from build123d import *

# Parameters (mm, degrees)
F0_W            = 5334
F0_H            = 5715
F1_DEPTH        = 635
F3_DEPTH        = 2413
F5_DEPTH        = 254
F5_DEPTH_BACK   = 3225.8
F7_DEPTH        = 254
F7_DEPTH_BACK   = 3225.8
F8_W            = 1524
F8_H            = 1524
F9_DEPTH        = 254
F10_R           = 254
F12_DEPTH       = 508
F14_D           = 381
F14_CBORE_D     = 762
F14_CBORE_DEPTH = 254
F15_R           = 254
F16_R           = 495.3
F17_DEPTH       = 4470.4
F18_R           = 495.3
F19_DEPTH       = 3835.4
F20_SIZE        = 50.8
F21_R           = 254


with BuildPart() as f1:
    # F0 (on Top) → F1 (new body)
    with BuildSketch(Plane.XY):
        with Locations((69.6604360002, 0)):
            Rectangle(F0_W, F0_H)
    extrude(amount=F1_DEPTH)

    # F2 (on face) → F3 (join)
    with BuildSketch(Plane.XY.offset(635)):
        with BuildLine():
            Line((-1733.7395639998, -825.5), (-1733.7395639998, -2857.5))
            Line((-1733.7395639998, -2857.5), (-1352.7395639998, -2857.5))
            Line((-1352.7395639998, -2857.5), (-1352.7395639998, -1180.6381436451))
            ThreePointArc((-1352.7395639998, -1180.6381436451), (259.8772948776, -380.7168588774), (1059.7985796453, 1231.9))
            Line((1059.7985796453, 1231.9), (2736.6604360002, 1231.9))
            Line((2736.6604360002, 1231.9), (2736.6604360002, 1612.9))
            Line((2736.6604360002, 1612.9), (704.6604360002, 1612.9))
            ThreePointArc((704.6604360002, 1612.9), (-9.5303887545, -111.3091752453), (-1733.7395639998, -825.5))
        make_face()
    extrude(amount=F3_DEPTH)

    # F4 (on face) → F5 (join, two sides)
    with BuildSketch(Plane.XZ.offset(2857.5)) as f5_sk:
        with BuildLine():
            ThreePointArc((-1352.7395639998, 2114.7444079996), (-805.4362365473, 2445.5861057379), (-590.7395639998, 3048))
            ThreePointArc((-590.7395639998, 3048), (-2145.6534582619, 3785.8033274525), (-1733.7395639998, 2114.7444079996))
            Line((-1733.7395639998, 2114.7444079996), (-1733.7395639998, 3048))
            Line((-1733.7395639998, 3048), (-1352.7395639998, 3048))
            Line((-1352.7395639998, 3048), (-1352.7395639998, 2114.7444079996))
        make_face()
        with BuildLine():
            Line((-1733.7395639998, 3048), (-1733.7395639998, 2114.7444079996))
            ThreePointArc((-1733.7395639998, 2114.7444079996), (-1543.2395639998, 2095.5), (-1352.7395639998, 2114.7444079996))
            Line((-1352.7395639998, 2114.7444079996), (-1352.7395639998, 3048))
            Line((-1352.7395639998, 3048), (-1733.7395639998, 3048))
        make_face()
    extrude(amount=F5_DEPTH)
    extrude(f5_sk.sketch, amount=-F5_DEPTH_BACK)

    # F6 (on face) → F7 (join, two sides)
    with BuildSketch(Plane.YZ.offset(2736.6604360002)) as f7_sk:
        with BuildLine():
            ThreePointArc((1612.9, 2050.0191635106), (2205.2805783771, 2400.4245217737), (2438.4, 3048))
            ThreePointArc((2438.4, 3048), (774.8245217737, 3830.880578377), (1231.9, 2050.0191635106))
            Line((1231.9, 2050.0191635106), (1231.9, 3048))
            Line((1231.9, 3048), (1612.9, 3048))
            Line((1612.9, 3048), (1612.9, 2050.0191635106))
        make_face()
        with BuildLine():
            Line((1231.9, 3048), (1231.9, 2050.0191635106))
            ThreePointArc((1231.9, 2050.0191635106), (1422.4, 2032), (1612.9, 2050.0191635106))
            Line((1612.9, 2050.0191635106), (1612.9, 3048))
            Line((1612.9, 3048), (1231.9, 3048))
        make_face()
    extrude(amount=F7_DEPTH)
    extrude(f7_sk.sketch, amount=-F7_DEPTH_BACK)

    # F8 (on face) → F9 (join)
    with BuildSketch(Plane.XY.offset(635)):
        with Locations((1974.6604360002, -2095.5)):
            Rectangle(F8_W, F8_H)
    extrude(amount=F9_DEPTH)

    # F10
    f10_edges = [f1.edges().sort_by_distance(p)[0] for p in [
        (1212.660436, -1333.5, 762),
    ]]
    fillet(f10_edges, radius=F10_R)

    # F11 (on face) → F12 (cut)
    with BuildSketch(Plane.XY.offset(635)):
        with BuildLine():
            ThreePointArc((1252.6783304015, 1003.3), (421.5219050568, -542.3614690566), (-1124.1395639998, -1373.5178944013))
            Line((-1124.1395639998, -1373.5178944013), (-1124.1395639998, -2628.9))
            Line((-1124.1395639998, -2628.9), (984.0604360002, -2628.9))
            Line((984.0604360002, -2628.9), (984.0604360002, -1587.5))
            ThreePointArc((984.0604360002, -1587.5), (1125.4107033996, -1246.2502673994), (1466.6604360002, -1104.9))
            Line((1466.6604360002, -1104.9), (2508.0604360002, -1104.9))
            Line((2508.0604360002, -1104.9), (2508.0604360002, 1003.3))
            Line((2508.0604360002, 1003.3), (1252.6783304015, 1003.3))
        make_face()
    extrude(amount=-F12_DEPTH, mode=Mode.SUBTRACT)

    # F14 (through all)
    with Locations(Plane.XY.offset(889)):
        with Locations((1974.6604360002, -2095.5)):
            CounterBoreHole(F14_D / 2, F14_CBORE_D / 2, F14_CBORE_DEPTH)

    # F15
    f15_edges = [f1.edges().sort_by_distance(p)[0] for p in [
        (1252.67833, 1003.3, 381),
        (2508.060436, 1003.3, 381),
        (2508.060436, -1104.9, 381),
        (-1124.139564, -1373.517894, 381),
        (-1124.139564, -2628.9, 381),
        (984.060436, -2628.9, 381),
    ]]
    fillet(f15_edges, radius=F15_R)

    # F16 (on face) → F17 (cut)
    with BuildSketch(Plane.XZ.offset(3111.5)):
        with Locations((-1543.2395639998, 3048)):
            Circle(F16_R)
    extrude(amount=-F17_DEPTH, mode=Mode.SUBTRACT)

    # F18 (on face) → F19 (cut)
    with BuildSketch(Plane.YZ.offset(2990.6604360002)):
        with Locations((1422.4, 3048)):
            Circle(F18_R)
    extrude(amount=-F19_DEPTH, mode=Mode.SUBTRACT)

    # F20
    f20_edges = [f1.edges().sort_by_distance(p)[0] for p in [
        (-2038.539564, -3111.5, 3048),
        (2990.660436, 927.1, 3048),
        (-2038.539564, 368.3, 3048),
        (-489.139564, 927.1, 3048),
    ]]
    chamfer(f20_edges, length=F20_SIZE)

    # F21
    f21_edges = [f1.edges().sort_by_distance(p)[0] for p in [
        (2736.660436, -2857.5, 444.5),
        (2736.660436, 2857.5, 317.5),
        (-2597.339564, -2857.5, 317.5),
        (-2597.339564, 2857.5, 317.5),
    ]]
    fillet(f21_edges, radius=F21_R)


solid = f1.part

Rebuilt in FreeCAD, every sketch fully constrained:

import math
import FreeCAD as App
import Part
import Sketcher
from FreeCAD import Vector
Q = App.Units.Quantity


def edges_at(feature, points):
    """Names of the edges that pass closest to the given points."""
    edges = feature.Shape.Edges
    near = lambda p: min(range(len(edges)), key=lambda i: edges[i].distToShape(Part.Vertex(*p))[0])
    return sorted({f"Edge{near(p) + 1}" for p in points})

doc = App.newDocument("Part")
body = doc.addObject("PartDesign::Body", "Body")

sketch1 = doc.addObject("Sketcher::SketchObject", "Sketch")
body.addObject(sketch1)
sketch1.AttachmentSupport = (doc.XY_Plane, [""])
sketch1.MapMode = "FlatFace"
sketch1.addGeometry([
    Part.LineSegment(Vector(-2597, 2858, 0), Vector(-2597, -2858, 0)),
    Part.LineSegment(Vector(-2597, -2858, 0), Vector(2737, -2858, 0)),
    Part.LineSegment(Vector(2737, -2858, 0), Vector(2737, 2858, 0)),
    Part.LineSegment(Vector(2737, 2858, 0), Vector(-2597, 2858, 0)),
], False)
sketch1.addConstraint([
    Sketcher.Constraint("Coincident", 0, 2, 1, 1),
    Sketcher.Constraint("Coincident", 1, 2, 2, 1),
    Sketcher.Constraint("Coincident", 2, 2, 3, 1),
    Sketcher.Constraint("Coincident", 3, 2, 0, 1),
    Sketcher.Constraint("Vertical", 0),
    Sketcher.Constraint("Horizontal", 1),
    Sketcher.Constraint("Vertical", 2),
    Sketcher.Constraint("Horizontal", 3),
    Sketcher.Constraint("DistanceX", 1, 1, 1, 2, Q("210 in")),
    Sketcher.Constraint("DistanceY", 0, 2, 0, 1, Q("225 in")),
    Sketcher.Constraint("DistanceY", 0, 2, -1, 1, Q("112.5 in")),
    Sketcher.Constraint("DistanceX", 0, 2, -1, 1, Q("2597.339564 mm")),
])
pad1 = doc.addObject("PartDesign::Pad", "Pad")
body.addObject(pad1)
pad1.Profile = sketch1
pad1.Length = Q("25 in")

sketch2 = doc.addObject("Sketcher::SketchObject", "Sketch001")
body.addObject(sketch2)
sketch2.AttachmentSupport = (doc.XY_Plane, [""])
sketch2.MapMode = "FlatFace"
sketch2.AttachmentOffset = App.Placement(Vector(0, 0, 25 * 25.4), App.Rotation())
sketch2.addGeometry([
    Part.LineSegment(Vector(-1734, -826, 0), Vector(-1734, -2858, 0)),
    Part.LineSegment(Vector(-1734, -2858, 0), Vector(-1353, -2858, 0)),
    Part.LineSegment(Vector(-1353, -2858, 0), Vector(-1353, -1181, 0)),
    Part.ArcOfCircle(Part.Circle(Vector(-1734, 1613, 0), Vector(0, 0, 1), 2819), math.radians(-82), math.radians(-8)),
    Part.LineSegment(Vector(1060, 1232, 0), Vector(2737, 1232, 0)),
    Part.LineSegment(Vector(2737, 1232, 0), Vector(2737, 1613, 0)),
    Part.LineSegment(Vector(2737, 1613, 0), Vector(705, 1613, 0)),
    Part.ArcOfCircle(Part.Circle(Vector(-1734, 1613, 0), Vector(0, 0, 1), 2438), math.radians(-90), math.radians(0)),
], False)
sketch2.addConstraint([
    Sketcher.Constraint("Coincident", 0, 2, 1, 1),
    Sketcher.Constraint("Coincident", 1, 2, 2, 1),
    Sketcher.Constraint("Coincident", 2, 2, 3, 1),
    Sketcher.Constraint("Coincident", 3, 2, 4, 1),
    Sketcher.Constraint("Coincident", 4, 2, 5, 1),
    Sketcher.Constraint("Coincident", 5, 2, 6, 1),
    Sketcher.Constraint("Coincident", 6, 2, 7, 2),
    Sketcher.Constraint("Coincident", 7, 1, 0, 1),
    Sketcher.Constraint("Vertical", 0),
    Sketcher.Constraint("Horizontal", 1),
    Sketcher.Constraint("Vertical", 2),
    Sketcher.Constraint("Horizontal", 4),
    Sketcher.Constraint("Vertical", 5),
    Sketcher.Constraint("Horizontal", 6),
    Sketcher.Constraint("Coincident", 7, 3, 3, 3),
    Sketcher.Constraint("Horizontal", 7, 3, 5, 2),
    Sketcher.Constraint("Vertical", 7, 3, 0, 2),
    Sketcher.Constraint("Equal", 6, 0),
    Sketcher.Constraint("Equal", 4, 2),
    Sketcher.Constraint("Radius", 3, Q("111 in")),
    Sketcher.Constraint("Radius", 7, Q("96 in")),
    Sketcher.Constraint("DistanceX", 1, 1, 1, 2, Q("15 in")),
    Sketcher.Constraint("DistanceX", 6, 2, 6, 1, Q("80 in")),
    Sketcher.Constraint("DistanceY", -1, 1, 3, 3, Q("63.5 in")),
    Sketcher.Constraint("DistanceX", 3, 3, -1, 1, Q("1733.739564 mm")),
])
pad2 = doc.addObject("PartDesign::Pad", "Pad001")
body.addObject(pad2)
pad2.Profile = sketch2
pad2.Length = Q("95 in")

sketch3 = doc.addObject("Sketcher::SketchObject", "Sketch002")
body.addObject(sketch3)
sketch3.AttachmentSupport = (doc.XZ_Plane, [""])
sketch3.MapMode = "FlatFace"
sketch3.AttachmentOffset = App.Placement(Vector(0, 0, 112.5 * 25.4), App.Rotation())
sketch3.addGeometry(Part.Circle(Vector(-1543, 3048, 0), Vector(0, 0, 1), 952), False)
sketch3.addConstraint([
    Sketcher.Constraint("Diameter", 0, Q("75 in")),
    Sketcher.Constraint("DistanceY", -1, 1, 0, 3, Q("120 in")),
    Sketcher.Constraint("DistanceX", 0, 3, -1, 1, Q("1543.239564 mm")),
])
pad3 = doc.addObject("PartDesign::Pad", "Pad002")
body.addObject(pad3)
pad3.Profile = sketch3
pad3.Type = "TwoLengths"
pad3.Length = Q("10 in")
pad3.Length2 = Q("127 in")

sketch4 = doc.addObject("Sketcher::SketchObject", "Sketch003")
body.addObject(sketch4)
sketch4.AttachmentSupport = (doc.YZ_Plane, [""])
sketch4.MapMode = "FlatFace"
sketch4.AttachmentOffset = App.Placement(Vector(0, 0, 2736.660436), App.Rotation())
sketch4.addGeometry(Part.Circle(Vector(1422, 3048, 0), Vector(0, 0, 1), 1016), False)
sketch4.addConstraint([
    Sketcher.Constraint("Diameter", 0, Q("80 in")),
    Sketcher.Constraint("DistanceX", -1, 1, 0, 3, Q("56 in")),
    Sketcher.Constraint("DistanceY", -1, 1, 0, 3, Q("120 in")),
])
pad4 = doc.addObject("PartDesign::Pad", "Pad003")
body.addObject(pad4)
pad4.Profile = sketch4
pad4.Type = "TwoLengths"
pad4.Length = Q("10 in")
pad4.Length2 = Q("127 in")

sketch5 = doc.addObject("Sketcher::SketchObject", "Sketch004")
body.addObject(sketch5)
sketch5.AttachmentSupport = (doc.XY_Plane, [""])
sketch5.MapMode = "FlatFace"
sketch5.AttachmentOffset = App.Placement(Vector(0, 0, 25 * 25.4), App.Rotation())
sketch5.addGeometry([
    Part.LineSegment(Vector(1213, -1334, 0), Vector(1213, -2858, 0)),
    Part.LineSegment(Vector(1213, -2858, 0), Vector(2737, -2858, 0)),
    Part.LineSegment(Vector(2737, -2858, 0), Vector(2737, -1334, 0)),
    Part.LineSegment(Vector(2737, -1334, 0), Vector(1213, -1334, 0)),
], False)
sketch5.addConstraint([
    Sketcher.Constraint("Coincident", 0, 2, 1, 1),
    Sketcher.Constraint("Coincident", 1, 2, 2, 1),
    Sketcher.Constraint("Coincident", 2, 2, 3, 1),
    Sketcher.Constraint("Coincident", 3, 2, 0, 1),
    Sketcher.Constraint("Vertical", 0),
    Sketcher.Constraint("Horizontal", 1),
    Sketcher.Constraint("Vertical", 2),
    Sketcher.Constraint("Horizontal", 3),
    Sketcher.Constraint("Equal", 3, 0),
    Sketcher.Constraint("DistanceX", 1, 1, 1, 2, Q("60 in")),
    Sketcher.Constraint("DistanceY", 0, 2, -1, 1, Q("112.5 in")),
    Sketcher.Constraint("DistanceX", -1, 1, 0, 2, Q("1212.660436 mm")),
])
pad5 = doc.addObject("PartDesign::Pad", "Pad004")
body.addObject(pad5)
pad5.Profile = sketch5
pad5.Length = Q("10 in")
doc.recompute()

fillet = doc.addObject("PartDesign::Fillet", "Fillet")
body.addObject(fillet)
fillet.Base = (pad5, edges_at(pad5, [(1212.66, -1333.5, 762)]))
fillet.Radius = Q("10 in")

sketch6 = doc.addObject("Sketcher::SketchObject", "Sketch005")
body.addObject(sketch6)
sketch6.AttachmentSupport = (doc.XY_Plane, [""])
sketch6.MapMode = "FlatFace"
sketch6.AttachmentOffset = App.Placement(Vector(0, 0, 25 * 25.4), App.Rotation())
sketch6.addGeometry([
    Part.ArcOfCircle(Part.Circle(Vector(-1734, 1613, 0), Vector(0, 0, 1), 3048), math.radians(-78), math.radians(-12)),
    Part.LineSegment(Vector(-1124, -1374, 0), Vector(-1124, -2629, 0)),
    Part.LineSegment(Vector(-1124, -2629, 0), Vector(984, -2629, 0)),
    Part.LineSegment(Vector(984, -2629, 0), Vector(984, -1588, 0)),
    Part.ArcOfCircle(Part.Circle(Vector(1467, -1588, 0), Vector(0, 0, 1), 483), math.radians(90), math.radians(180)),
    Part.LineSegment(Vector(1467, -1105, 0), Vector(2508, -1105, 0)),
    Part.LineSegment(Vector(2508, -1105, 0), Vector(2508, 1003, 0)),
    Part.LineSegment(Vector(2508, 1003, 0), Vector(1253, 1003, 0)),
], False)
sketch6.addConstraint([
    Sketcher.Constraint("Coincident", 0, 1, 1, 1),
    Sketcher.Constraint("Coincident", 1, 2, 2, 1),
    Sketcher.Constraint("Coincident", 2, 2, 3, 1),
    Sketcher.Constraint("Tangent", 3, 2, 4, 2),
    Sketcher.Constraint("Tangent", 4, 1, 5, 1),
    Sketcher.Constraint("Coincident", 5, 2, 6, 1),
    Sketcher.Constraint("Coincident", 6, 2, 7, 1),
    Sketcher.Constraint("Coincident", 7, 2, 0, 2),
    Sketcher.Constraint("Vertical", 1),
    Sketcher.Constraint("Horizontal", 2),
    Sketcher.Constraint("Vertical", 3),
    Sketcher.Constraint("Horizontal", 5),
    Sketcher.Constraint("Vertical", 6),
    Sketcher.Constraint("Horizontal", 7),
    Sketcher.Constraint("Equal", 7, 1),
    Sketcher.Constraint("Equal", 5, 3),
    Sketcher.Constraint("Equal", 2, 6),
    Sketcher.Constraint("Radius", 0, Q("120 in")),
    Sketcher.Constraint("Radius", 4, Q("19 in")),
    Sketcher.Constraint("DistanceX", 2, 1, 2, 2, Q("83 in")),
    Sketcher.Constraint("DistanceX", 5, 1, 5, 2, Q("41 in")),
    Sketcher.Constraint("DistanceX", 0, 3, 4, 3, Q("126 in")),
    Sketcher.Constraint("DistanceY", -1, 1, 0, 3, Q("63.5 in")),
    Sketcher.Constraint("DistanceX", -1, 1, 7, 2, Q("1252.67833 mm")),
])
pocket1 = doc.addObject("PartDesign::Pocket", "Pocket")
body.addObject(pocket1)
pocket1.Profile = sketch6
pocket1.Length = Q("20 in")

sketch7 = doc.addObject("Sketcher::SketchObject", "Sketch006")
body.addObject(sketch7)
sketch7.AttachmentSupport = (doc.XY_Plane, [""])
sketch7.MapMode = "FlatFace"
sketch7.AttachmentOffset = App.Placement(Vector(0, 0, 35 * 25.4), App.Rotation())
sketch7.addGeometry(Part.Circle(Vector(1975, -2096, 0), Vector(0, 0, 1), 190), False)
sketch7.addConstraint([
    Sketcher.Constraint("Diameter", 0, Q("15 in")),
    Sketcher.Constraint("DistanceY", 0, 3, -1, 1, Q("82.5 in")),
    Sketcher.Constraint("DistanceX", -1, 1, 0, 3, Q("1974.660436 mm")),
])
doc.recompute()
hole = doc.addObject("PartDesign::Hole", "Hole")
body.addObject(hole)
hole.Profile = sketch7
hole.ThreadType = "None"
hole.Diameter = Q("15 in")
hole.DepthType = "ThroughAll"
hole.HoleCutType = "Counterbore"
hole.HoleCutDiameter = Q("30 in")
hole.HoleCutDepth = Q("10 in")
doc.recompute()

fillet2 = doc.addObject("PartDesign::Fillet", "Fillet001")
body.addObject(fillet2)
fillet2.Base = (hole, edges_at(hole, [
    (1252.678, 1003.3, 381),
    (2508.06, 1003.3, 381),
    (2508.06, -1104.9, 381),
    (-1124.14, -1373.518, 381),
    (-1124.14, -2628.9, 381),
    (984.06, -2628.9, 381),
]))
fillet2.Radius = Q("10 in")

sketch8 = doc.addObject("Sketcher::SketchObject", "Sketch007")
body.addObject(sketch8)
sketch8.AttachmentSupport = (doc.XZ_Plane, [""])
sketch8.MapMode = "FlatFace"
sketch8.AttachmentOffset = App.Placement(Vector(0, 0, 122.5 * 25.4), App.Rotation())
sketch8.addGeometry(Part.Circle(Vector(-1543, 3048, 0), Vector(0, 0, 1), 495), False)
sketch8.addConstraint([
    Sketcher.Constraint("Diameter", 0, Q("39 in")),
    Sketcher.Constraint("DistanceY", -1, 1, 0, 3, Q("120 in")),
    Sketcher.Constraint("DistanceX", 0, 3, -1, 1, Q("1543.239564 mm")),
])
pocket2 = doc.addObject("PartDesign::Pocket", "Pocket001")
body.addObject(pocket2)
pocket2.Profile = sketch8
pocket2.Length = Q("176 in")

sketch9 = doc.addObject("Sketcher::SketchObject", "Sketch008")
body.addObject(sketch9)
sketch9.AttachmentSupport = (doc.YZ_Plane, [""])
sketch9.MapMode = "FlatFace"
sketch9.AttachmentOffset = App.Placement(Vector(0, 0, 2990.660436), App.Rotation())
sketch9.addGeometry(Part.Circle(Vector(1422, 3048, 0), Vector(0, 0, 1), 495), False)
sketch9.addConstraint([
    Sketcher.Constraint("Diameter", 0, Q("39 in")),
    Sketcher.Constraint("DistanceX", -1, 1, 0, 3, Q("56 in")),
    Sketcher.Constraint("DistanceY", -1, 1, 0, 3, Q("120 in")),
])
pocket3 = doc.addObject("PartDesign::Pocket", "Pocket002")
body.addObject(pocket3)
pocket3.Profile = sketch9
pocket3.Length = Q("151 in")
doc.recompute()

chamfer = doc.addObject("PartDesign::Chamfer", "Chamfer")
body.addObject(chamfer)
chamfer.Base = (pocket3, edges_at(pocket3, [
    (-2038.54, -3111.5, 3048),
    (2990.66, 927.1, 3048),
    (-2038.54, 368.3, 3048),
    (-489.14, 927.1, 3048),
]))
chamfer.Size = Q("2 in")
doc.recompute()

fillet3 = doc.addObject("PartDesign::Fillet", "Fillet002")
body.addObject(fillet3)
fillet3.Base = (chamfer, edges_at(chamfer, [
    (2736.66, -2857.5, 444.5),
    (2736.66, 2857.5, 317.5),
    (-2597.34, -2857.5, 317.5),
    (-2597.34, 2857.5, 317.5),
]))
fillet3.Radius = Q("10 in")

doc.recompute()
